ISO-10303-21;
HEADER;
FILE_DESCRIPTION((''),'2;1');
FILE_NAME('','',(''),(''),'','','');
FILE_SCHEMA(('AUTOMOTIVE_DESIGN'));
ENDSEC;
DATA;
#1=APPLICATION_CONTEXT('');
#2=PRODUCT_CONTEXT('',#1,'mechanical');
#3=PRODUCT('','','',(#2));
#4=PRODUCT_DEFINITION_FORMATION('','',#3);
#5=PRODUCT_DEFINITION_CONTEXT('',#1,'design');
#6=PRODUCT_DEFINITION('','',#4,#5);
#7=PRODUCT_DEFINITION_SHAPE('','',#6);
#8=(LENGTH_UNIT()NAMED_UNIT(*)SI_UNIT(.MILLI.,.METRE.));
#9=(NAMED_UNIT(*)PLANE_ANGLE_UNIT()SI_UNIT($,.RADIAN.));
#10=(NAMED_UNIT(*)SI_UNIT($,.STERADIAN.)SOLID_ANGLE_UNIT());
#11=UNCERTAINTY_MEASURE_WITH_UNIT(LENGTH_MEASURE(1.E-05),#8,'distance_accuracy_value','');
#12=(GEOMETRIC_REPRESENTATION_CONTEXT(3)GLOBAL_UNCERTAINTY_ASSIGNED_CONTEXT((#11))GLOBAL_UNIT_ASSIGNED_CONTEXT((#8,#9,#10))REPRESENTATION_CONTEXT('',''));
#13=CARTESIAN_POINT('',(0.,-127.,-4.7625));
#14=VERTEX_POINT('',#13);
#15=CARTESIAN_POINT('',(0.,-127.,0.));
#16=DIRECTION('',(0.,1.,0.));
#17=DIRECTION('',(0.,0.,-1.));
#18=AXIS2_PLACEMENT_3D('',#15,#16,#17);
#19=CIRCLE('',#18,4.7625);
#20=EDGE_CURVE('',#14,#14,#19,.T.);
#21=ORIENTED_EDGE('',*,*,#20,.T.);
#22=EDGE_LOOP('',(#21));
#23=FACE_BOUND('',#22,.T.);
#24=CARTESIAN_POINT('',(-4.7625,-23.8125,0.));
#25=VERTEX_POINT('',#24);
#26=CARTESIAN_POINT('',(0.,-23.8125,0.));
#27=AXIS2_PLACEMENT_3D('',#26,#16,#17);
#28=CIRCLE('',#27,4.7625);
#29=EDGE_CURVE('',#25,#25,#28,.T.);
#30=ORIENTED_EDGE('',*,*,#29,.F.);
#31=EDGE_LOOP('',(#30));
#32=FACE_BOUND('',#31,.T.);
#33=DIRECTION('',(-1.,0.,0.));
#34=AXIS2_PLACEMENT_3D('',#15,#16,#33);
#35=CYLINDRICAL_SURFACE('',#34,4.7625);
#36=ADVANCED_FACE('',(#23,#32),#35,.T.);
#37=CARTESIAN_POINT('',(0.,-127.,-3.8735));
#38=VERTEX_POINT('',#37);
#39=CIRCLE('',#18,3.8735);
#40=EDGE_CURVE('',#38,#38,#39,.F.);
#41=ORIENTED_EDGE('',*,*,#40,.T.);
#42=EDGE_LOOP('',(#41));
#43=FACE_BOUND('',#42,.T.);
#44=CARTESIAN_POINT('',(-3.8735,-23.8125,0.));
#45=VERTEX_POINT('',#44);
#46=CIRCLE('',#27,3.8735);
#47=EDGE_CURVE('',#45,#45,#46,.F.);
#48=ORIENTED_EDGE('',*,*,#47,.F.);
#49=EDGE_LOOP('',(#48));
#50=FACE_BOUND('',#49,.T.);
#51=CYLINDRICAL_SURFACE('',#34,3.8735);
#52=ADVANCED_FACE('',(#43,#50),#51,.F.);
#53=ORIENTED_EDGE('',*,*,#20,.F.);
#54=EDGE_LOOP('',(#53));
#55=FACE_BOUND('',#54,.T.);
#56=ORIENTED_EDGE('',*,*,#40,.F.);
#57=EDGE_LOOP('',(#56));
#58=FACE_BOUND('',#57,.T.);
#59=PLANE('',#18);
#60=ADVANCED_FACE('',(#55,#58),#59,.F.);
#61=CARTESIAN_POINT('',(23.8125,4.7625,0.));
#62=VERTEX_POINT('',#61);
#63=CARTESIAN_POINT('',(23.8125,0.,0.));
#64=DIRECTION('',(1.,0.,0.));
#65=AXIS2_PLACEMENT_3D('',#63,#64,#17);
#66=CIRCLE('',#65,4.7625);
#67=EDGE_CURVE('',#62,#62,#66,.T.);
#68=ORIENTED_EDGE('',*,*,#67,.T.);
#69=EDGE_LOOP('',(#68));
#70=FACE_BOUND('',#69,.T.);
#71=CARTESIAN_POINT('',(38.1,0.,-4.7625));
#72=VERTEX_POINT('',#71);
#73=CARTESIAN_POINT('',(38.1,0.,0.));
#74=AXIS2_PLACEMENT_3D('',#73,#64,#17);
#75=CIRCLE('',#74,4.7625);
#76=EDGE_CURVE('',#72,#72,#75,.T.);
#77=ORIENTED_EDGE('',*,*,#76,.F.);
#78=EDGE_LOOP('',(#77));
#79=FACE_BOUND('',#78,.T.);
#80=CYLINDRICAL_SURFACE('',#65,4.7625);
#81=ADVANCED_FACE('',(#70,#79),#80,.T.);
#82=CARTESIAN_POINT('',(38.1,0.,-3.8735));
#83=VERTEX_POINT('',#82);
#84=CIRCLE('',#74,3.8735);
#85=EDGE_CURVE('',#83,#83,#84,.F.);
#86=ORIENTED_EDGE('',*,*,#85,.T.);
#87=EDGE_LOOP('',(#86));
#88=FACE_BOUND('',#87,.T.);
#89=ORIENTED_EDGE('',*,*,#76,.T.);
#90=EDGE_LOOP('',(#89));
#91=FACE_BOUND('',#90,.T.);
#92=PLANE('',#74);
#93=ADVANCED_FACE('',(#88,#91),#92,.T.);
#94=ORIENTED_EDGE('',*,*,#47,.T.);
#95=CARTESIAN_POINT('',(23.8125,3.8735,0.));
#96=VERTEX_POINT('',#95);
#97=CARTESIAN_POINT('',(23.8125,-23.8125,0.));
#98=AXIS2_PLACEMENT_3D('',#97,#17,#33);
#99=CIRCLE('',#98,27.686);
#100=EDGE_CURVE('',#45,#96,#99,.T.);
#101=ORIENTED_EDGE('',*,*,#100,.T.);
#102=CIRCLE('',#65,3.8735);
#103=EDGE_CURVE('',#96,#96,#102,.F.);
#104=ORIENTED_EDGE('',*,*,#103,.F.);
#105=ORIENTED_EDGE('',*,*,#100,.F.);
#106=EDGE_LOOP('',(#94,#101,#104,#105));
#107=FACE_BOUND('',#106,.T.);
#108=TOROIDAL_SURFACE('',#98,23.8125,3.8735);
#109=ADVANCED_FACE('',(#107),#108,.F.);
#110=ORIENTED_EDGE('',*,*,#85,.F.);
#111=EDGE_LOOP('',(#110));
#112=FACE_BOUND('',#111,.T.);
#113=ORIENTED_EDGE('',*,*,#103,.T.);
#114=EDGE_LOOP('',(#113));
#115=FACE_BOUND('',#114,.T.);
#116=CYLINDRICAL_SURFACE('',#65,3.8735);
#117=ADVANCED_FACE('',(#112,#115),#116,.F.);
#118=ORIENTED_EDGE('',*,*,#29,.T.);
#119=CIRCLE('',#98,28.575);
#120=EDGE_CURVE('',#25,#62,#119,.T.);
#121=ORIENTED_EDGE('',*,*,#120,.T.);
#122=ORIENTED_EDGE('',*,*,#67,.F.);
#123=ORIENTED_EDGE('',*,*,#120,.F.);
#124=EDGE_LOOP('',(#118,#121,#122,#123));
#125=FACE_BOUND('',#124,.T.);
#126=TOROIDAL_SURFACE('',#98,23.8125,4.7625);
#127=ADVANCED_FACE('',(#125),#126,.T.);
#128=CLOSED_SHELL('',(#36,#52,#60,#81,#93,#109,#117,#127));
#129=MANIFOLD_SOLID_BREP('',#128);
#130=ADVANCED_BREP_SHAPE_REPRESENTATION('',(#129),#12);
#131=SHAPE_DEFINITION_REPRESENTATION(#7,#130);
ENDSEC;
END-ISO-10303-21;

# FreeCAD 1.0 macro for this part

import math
import FreeCAD as App
import Part
import Sketcher

V = App.Vector
Q = App.Units.Quantity

doc = App.newDocument("Part")
body = doc.addObject("PartDesign::Body", "Body")

# Sketch on YZ plane
sketch1 = body.newObject("Sketcher::SketchObject", "Sketch")
sketch1.AttachmentSupport = (doc.getObject("YZ_Plane"), [""])
sketch1.MapMode = "FlatFace"
sketch1.AttachmentOffset = App.Placement(V(0, 0, 1.5 * 25.4), App.Rotation())
sketch1.addGeometry(Part.Circle(V(0, 0, 0), V(0, 0, 1), 4.8), False)
sketch1.addGeometry(Part.Circle(V(0, 0, 0), V(0, 0, 1), 3.9), False)
sketch1.addConstraint(Sketcher.Constraint("Coincident", 0, 3, -1, 1))
sketch1.addConstraint(Sketcher.Constraint("Coincident", 1, 3, -1, 1))
sketch1.addConstraint(Sketcher.Constraint("Diameter", 0, Q("0.375 in")))
sketch1.addConstraint(Sketcher.Constraint("Diameter", 1, Q("0.305 in")))

# Sketch on XY plane
sketch2 = body.newObject("Sketcher::SketchObject", "Sketch001")
sketch2.AttachmentSupport = (doc.getObject("XY_Plane"), [""])
sketch2.MapMode = "FlatFace"
sketch2.addGeometry(Part.LineSegment(V(0, -127, 0), V(0, -24, 0)), False)
sketch2.addGeometry(Part.ArcOfCircle(Part.Circle(V(24, -24, 0), V(0, 0, 1), 24), math.radians(90), math.radians(180)), False)
sketch2.addGeometry(Part.LineSegment(V(24, 0, 0), V(38, 0, 0)), False)
sketch2.addConstraint(Sketcher.Constraint("Tangent", 0, 2, 1, 2))
sketch2.addConstraint(Sketcher.Constraint("Tangent", 1, 1, 2, 1))
sketch2.addConstraint(Sketcher.Constraint("Vertical", 0))
sketch2.addConstraint(Sketcher.Constraint("Horizontal", 2))
sketch2.addConstraint(Sketcher.Constraint("PointOnObject", 0, 1, -2))
sketch2.addConstraint(Sketcher.Constraint("PointOnObject", 1, 1, -1))
sketch2.addConstraint(Sketcher.Constraint("DistanceY", 0, 1, -1, 1, Q("5 in")))
sketch2.addConstraint(Sketcher.Constraint("Radius", 1, Q("0.9375 in")))
sketch2.addConstraint(Sketcher.Constraint("DistanceX", -1, 1, 2, 2, Q("1.5 in")))
doc.recompute()

additivepipe = body.newObject("PartDesign::AdditivePipe", "AdditivePipe")
additivepipe.Profile = sketch1
additivepipe.Spine = (sketch2, ["Edge1", "Edge2", "Edge3"])

doc.recompute()
